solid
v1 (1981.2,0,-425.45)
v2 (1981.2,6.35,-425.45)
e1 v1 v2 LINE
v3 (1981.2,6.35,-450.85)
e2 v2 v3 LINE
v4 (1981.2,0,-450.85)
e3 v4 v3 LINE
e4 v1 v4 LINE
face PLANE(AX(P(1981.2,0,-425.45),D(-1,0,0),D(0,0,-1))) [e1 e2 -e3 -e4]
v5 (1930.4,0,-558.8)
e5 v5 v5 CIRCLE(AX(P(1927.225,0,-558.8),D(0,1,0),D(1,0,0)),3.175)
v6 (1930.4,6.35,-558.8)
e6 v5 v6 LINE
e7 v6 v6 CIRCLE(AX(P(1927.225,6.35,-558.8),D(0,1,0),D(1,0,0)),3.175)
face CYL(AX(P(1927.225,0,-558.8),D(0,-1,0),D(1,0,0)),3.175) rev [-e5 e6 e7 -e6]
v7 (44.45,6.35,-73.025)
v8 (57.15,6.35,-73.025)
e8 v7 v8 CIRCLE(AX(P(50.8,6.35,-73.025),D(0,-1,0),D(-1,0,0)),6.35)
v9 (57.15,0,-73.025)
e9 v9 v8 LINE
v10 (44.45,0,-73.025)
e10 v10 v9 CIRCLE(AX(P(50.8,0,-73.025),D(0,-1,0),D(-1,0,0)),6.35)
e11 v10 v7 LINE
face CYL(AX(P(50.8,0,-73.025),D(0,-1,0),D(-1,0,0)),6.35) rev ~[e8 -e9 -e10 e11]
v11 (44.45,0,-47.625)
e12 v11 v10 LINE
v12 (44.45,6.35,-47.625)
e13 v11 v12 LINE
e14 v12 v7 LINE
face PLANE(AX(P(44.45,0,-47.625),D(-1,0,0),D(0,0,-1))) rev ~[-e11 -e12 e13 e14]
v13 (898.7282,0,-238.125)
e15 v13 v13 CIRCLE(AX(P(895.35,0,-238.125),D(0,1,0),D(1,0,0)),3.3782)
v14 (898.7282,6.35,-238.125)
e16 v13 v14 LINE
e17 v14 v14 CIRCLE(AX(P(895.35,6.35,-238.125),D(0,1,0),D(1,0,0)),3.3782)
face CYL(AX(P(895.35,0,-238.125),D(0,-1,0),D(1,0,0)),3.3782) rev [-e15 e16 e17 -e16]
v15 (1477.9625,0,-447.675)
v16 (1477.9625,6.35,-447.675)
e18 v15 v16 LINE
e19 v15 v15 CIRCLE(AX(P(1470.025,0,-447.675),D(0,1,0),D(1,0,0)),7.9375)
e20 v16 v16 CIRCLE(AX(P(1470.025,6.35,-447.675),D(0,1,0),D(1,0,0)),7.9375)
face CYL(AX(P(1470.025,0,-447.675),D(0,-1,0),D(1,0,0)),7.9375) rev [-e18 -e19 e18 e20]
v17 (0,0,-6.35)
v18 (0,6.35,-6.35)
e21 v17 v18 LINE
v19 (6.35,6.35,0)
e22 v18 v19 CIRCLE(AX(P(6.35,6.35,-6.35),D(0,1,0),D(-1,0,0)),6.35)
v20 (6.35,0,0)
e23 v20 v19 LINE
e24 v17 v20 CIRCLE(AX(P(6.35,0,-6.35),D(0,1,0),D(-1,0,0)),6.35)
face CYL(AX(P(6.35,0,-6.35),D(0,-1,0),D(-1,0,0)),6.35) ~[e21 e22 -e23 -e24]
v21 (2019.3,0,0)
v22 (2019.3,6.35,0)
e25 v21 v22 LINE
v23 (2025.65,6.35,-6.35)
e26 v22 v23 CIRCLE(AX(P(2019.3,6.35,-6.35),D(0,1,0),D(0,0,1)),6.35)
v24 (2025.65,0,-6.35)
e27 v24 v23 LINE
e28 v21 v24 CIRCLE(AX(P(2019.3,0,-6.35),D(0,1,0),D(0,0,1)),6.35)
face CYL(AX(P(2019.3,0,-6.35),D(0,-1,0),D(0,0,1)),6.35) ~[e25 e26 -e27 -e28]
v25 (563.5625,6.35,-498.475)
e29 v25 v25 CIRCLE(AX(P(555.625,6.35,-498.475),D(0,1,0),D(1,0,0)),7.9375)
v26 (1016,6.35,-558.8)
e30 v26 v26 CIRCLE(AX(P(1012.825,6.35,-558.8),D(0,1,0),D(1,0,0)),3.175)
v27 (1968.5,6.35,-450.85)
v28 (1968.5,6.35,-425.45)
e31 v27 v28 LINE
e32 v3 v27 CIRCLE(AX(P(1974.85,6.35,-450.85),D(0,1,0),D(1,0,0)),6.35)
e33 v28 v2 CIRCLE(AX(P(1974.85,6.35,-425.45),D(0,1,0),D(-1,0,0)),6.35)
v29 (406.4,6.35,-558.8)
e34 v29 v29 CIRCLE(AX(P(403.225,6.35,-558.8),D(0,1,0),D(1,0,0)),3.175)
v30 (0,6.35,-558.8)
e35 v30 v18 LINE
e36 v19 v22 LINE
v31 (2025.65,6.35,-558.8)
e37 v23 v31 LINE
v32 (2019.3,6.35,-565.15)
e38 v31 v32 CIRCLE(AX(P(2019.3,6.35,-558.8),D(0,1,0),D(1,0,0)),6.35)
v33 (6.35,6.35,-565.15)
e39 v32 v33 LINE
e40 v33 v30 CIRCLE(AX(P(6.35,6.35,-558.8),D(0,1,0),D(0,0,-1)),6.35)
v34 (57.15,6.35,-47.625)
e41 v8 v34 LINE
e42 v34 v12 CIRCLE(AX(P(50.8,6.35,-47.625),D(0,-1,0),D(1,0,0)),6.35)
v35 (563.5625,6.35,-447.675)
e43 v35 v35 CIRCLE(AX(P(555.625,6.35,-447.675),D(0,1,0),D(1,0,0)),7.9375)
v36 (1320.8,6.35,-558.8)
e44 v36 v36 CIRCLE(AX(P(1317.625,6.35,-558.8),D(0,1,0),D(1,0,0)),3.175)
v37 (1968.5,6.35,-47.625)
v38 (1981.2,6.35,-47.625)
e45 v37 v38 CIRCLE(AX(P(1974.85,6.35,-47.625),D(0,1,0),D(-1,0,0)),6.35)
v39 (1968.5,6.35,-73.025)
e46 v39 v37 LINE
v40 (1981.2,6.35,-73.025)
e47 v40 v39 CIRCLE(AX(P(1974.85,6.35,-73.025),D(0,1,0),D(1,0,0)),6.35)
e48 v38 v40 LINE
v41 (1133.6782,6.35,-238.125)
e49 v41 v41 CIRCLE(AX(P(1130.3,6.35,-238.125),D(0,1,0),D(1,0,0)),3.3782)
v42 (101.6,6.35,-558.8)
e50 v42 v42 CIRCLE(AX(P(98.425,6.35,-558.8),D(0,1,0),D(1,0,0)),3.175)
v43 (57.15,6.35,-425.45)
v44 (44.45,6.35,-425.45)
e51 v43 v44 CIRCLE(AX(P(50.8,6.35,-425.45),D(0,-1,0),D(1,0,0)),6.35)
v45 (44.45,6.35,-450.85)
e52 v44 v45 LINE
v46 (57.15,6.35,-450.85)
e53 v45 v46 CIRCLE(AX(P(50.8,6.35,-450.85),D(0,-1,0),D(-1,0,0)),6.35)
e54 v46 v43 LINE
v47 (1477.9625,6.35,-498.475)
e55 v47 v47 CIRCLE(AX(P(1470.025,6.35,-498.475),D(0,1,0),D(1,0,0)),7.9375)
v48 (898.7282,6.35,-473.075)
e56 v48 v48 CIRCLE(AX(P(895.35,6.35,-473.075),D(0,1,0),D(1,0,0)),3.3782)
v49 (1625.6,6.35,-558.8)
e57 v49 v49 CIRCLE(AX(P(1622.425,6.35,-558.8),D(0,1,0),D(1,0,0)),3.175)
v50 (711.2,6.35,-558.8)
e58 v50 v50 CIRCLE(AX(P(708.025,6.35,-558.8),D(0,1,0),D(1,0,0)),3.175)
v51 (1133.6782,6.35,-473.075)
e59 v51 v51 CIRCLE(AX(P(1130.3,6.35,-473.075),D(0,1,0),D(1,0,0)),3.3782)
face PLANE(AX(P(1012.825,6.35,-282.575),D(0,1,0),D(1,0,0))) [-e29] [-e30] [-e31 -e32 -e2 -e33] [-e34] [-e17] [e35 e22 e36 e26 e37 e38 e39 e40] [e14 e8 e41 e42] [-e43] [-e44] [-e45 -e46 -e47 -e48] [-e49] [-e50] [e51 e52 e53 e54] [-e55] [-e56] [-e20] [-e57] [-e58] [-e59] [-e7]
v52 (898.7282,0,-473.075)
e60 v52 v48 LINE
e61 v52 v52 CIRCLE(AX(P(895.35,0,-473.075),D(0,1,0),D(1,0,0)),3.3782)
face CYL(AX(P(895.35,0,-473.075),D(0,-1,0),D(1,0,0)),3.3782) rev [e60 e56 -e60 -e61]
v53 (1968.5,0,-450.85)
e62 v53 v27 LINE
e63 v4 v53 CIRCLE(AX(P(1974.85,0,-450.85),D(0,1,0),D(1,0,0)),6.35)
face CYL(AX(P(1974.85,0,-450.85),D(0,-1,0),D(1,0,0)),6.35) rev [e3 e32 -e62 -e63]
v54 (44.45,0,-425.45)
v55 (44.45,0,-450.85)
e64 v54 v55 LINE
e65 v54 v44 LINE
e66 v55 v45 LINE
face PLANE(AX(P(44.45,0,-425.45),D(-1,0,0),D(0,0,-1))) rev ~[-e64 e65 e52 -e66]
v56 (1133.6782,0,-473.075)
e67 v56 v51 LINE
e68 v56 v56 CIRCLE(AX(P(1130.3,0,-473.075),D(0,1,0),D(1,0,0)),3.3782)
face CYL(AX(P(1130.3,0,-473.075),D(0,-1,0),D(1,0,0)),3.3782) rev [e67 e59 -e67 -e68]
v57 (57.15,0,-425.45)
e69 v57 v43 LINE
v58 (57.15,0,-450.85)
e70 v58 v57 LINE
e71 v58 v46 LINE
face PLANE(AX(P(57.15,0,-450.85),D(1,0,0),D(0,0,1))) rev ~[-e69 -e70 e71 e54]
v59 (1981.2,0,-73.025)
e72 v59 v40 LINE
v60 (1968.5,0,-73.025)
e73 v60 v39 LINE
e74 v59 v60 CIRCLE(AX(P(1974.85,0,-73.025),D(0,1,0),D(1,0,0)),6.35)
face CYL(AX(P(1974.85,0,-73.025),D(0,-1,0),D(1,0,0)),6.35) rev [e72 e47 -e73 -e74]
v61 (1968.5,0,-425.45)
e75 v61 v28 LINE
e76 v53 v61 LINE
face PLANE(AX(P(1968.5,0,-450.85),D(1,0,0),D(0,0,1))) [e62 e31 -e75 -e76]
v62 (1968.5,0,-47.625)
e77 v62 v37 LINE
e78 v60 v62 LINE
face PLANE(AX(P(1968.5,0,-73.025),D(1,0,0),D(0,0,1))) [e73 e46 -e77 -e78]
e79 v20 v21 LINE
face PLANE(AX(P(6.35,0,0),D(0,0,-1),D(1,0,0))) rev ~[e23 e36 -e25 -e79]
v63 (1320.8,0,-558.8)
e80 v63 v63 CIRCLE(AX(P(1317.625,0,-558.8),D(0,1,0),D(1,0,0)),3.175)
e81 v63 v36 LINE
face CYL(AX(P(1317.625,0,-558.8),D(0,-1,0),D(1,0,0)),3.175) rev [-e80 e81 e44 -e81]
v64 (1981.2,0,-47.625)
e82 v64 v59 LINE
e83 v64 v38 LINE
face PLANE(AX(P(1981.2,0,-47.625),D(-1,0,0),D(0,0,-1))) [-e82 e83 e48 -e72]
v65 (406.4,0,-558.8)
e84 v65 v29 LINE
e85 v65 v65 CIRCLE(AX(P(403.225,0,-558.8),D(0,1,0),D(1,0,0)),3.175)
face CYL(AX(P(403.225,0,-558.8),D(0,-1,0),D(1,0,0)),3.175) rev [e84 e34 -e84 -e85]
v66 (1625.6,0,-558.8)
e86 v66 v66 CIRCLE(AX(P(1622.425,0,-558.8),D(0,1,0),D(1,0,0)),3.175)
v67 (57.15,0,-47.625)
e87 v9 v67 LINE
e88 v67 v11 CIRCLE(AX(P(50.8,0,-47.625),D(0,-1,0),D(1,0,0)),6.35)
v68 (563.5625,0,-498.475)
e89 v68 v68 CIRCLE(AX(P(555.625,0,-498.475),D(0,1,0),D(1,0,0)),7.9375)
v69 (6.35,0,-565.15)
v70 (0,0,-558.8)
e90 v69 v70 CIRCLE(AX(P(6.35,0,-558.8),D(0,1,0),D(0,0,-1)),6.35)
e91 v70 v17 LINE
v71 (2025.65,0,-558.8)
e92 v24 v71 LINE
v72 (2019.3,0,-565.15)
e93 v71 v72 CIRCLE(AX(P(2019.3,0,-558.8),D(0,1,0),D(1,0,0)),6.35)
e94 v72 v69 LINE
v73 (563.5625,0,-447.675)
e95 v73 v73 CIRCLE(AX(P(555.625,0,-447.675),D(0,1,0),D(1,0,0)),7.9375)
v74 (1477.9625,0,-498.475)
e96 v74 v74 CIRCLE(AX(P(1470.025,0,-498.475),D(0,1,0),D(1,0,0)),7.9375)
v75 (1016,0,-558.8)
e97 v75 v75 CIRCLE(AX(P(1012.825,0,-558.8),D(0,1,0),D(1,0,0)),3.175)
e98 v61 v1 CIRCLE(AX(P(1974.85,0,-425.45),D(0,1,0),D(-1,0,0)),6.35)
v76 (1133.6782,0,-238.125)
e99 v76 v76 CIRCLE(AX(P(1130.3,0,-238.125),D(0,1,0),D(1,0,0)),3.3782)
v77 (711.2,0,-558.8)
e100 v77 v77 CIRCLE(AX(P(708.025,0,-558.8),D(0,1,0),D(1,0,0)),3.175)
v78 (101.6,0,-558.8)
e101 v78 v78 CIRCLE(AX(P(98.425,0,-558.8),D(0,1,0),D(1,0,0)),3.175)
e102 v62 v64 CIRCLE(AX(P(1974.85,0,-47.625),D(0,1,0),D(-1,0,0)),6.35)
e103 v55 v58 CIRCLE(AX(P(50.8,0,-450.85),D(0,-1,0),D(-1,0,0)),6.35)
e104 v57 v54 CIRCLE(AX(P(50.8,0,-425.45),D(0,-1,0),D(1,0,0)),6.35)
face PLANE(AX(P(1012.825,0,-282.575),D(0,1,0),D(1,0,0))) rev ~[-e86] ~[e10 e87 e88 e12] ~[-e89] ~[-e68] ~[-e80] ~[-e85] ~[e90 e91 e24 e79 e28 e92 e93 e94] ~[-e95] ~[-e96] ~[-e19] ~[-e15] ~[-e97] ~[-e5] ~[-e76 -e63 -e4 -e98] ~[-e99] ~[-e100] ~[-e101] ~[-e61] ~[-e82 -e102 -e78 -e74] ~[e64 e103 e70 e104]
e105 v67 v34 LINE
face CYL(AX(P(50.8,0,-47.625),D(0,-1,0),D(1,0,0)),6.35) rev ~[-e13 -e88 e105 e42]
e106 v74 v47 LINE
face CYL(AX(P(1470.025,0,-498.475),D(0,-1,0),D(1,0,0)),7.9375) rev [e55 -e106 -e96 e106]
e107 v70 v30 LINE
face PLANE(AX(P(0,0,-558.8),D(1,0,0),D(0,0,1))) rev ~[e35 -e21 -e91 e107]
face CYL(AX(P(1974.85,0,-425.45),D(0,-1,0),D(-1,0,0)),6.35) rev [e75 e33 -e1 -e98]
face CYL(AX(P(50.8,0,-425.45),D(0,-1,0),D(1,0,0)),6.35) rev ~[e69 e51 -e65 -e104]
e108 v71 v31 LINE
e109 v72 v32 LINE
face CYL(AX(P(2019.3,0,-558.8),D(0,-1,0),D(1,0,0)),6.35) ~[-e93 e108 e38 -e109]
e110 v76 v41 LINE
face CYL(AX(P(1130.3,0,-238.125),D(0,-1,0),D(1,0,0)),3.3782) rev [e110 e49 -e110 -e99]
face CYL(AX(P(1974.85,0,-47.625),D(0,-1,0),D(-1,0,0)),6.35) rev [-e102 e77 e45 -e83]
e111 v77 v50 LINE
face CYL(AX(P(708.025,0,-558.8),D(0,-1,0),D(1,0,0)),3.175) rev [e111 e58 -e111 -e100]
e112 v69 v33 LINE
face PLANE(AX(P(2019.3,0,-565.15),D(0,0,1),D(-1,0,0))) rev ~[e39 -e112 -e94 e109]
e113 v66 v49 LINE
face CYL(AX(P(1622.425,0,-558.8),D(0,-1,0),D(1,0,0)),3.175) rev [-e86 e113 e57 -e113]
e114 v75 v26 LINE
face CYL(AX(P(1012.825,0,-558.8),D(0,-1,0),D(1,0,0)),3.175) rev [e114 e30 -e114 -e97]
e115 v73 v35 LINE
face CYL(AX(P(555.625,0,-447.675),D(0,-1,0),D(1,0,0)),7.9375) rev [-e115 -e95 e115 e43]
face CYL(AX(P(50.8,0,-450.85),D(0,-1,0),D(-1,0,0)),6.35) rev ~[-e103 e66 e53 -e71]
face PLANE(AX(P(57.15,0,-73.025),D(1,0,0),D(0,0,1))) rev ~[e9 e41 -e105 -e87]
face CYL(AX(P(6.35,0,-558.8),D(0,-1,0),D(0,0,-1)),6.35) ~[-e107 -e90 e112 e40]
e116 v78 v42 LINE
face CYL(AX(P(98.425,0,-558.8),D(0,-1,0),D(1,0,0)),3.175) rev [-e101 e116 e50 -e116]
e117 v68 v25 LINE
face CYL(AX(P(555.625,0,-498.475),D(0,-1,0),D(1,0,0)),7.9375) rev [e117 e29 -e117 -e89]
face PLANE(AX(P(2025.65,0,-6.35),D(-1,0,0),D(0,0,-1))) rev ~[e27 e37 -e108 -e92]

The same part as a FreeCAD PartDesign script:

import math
import FreeCAD as App
import Part
import Sketcher
Q = App.Units.Quantity

doc = App.newDocument("Part")
body = doc.addObject("PartDesign::Body", "Body")

sketch1 = doc.addObject("Sketcher::SketchObject", "Sketch")
body.addObject(sketch1)
sketch1.AttachmentSupport = (doc.XZ_Plane, [""])
sketch1.MapMode = "FlatFace"
sketch1.addGeometry([
    Part.LineSegment(App.Vector(6.35, 0, 0), App.Vector(2019.3, 0, 0)),
    Part.ArcOfCircle(Part.Circle(App.Vector(2019.3, -6.35, 0), App.Vector(0, 0, 1), 6.35), math.radians(0), math.radians(90)),
    Part.LineSegment(App.Vector(2025.65, -6.35, 0), App.Vector(2025.65, -558.8, 0)),
    Part.ArcOfCircle(Part.Circle(App.Vector(2019.3, -558.8, 0), App.Vector(0, 0, 1), 6.35), math.radians(-90), math.radians(0)),
    Part.LineSegment(App.Vector(2019.3, -565.15, 0), App.Vector(6.35, -565.15, 0)),
    Part.ArcOfCircle(Part.Circle(App.Vector(6.35, -558.8, 0), App.Vector(0, 0, 1), 6.35), math.radians(180), math.radians(270)),
    Part.LineSegment(App.Vector(0, -558.8, 0), App.Vector(0, -6.35, 0)),
    Part.ArcOfCircle(Part.Circle(App.Vector(6.35, -6.35, 0), App.Vector(0, 0, 1), 6.35), math.radians(90), math.radians(180)),
    Part.ArcOfCircle(Part.Circle(App.Vector(50.8, -73.025, 0), App.Vector(0, 0, 1), 6.35), math.radians(180), math.radians(360)),
    Part.LineSegment(App.Vector(57.15, -73.025, 0), App.Vector(57.15, -47.625, 0)),
    Part.ArcOfCircle(Part.Circle(App.Vector(50.8, -47.625, 0), App.Vector(0, 0, 1), 6.35), math.radians(0), math.radians(180)),
    Part.LineSegment(App.Vector(44.45, -47.625, 0), App.Vector(44.45, -73.025, 0)),
    Part.Circle(App.Vector(895.35, -238.125, 0), App.Vector(0, 0, 1), 3.3782),
    Part.LineSegment(App.Vector(1968.5, -47.625, 0), App.Vector(1968.5, -73.025, 0)),
    Part.ArcOfCircle(Part.Circle(App.Vector(1974.85, -73.025, 0), App.Vector(0, 0, 1), 6.35), math.radians(180), math.radians(360)),
    Part.LineSegment(App.Vector(1981.2, -73.025, 0), App.Vector(1981.2, -47.625, 0)),
    Part.ArcOfCircle(Part.Circle(App.Vector(1974.85, -47.625, 0), App.Vector(0, 0, 1), 6.35), math.radians(0), math.radians(180)),
    Part.Circle(App.Vector(1130.3, -238.125, 0), App.Vector(0, 0, 1), 3.3782),
    Part.ArcOfCircle(Part.Circle(App.Vector(50.8, -425.45, 0), App.Vector(0, 0, 1), 6.35), math.radians(0), math.radians(180)),
    Part.LineSegment(App.Vector(44.45, -425.45, 0), App.Vector(44.45, -450.85, 0)),
    Part.ArcOfCircle(Part.Circle(App.Vector(50.8, -450.85, 0), App.Vector(0, 0, 1), 6.35), math.radians(180), math.radians(360)),
    Part.LineSegment(App.Vector(57.15, -450.85, 0), App.Vector(57.15, -425.45, 0)),
    Part.Circle(App.Vector(98.425, -558.8, 0), App.Vector(0, 0, 1), 3.175),
    Part.Circle(App.Vector(403.225, -558.8, 0), App.Vector(0, 0, 1), 3.175),
    Part.Circle(App.Vector(555.625, -447.675, 0), App.Vector(0, 0, 1), 7.9375),
    Part.Circle(App.Vector(895.35, -473.075, 0), App.Vector(0, 0, 1), 3.3782),
    Part.Circle(App.Vector(555.625, -498.475, 0), App.Vector(0, 0, 1), 7.9375),
    Part.Circle(App.Vector(708.025, -558.8, 0), App.Vector(0, 0, 1), 3.175),
    Part.Circle(App.Vector(1012.825, -558.8, 0), App.Vector(0, 0, 1), 3.175),
    Part.Circle(App.Vector(1130.3, -473.075, 0), App.Vector(0, 0, 1), 3.3782),
    Part.Circle(App.Vector(1470.025, -447.675, 0), App.Vector(0, 0, 1), 7.9375),
    Part.Circle(App.Vector(1470.025, -498.475, 0), App.Vector(0, 0, 1), 7.9375),
    Part.Circle(App.Vector(1317.625, -558.8, 0), App.Vector(0, 0, 1), 3.175),
    Part.LineSegment(App.Vector(1981.2, -450.85, 0), App.Vector(1981.2, -425.45, 0)),
    Part.ArcOfCircle(Part.Circle(App.Vector(1974.85, -425.45, 0), App.Vector(0, 0, 1), 6.35), math.radians(0), math.radians(180)),
    Part.LineSegment(App.Vector(1968.5, -425.45, 0), App.Vector(1968.5, -450.85, 0)),
    Part.ArcOfCircle(Part.Circle(App.Vector(1974.85, -450.85, 0), App.Vector(0, 0, 1), 6.35), math.radians(180), math.radians(360)),
    Part.Circle(App.Vector(1622.425, -558.8, 0), App.Vector(0, 0, 1), 3.175),
    Part.Circle(App.Vector(1927.225, -558.8, 0), App.Vector(0, 0, 1), 3.175),
], False)
sketch1.addConstraint([
    Sketcher.Constraint("Tangent", 0, 2, 1, 2),
    Sketcher.Constraint("Tangent", 1, 1, 2, 1),
    Sketcher.Constraint("Tangent", 2, 2, 3, 2),
    Sketcher.Constraint("Tangent", 3, 1, 4, 1),
    Sketcher.Constraint("Tangent", 4, 2, 5, 2),
    Sketcher.Constraint("Tangent", 5, 1, 6, 1),
    Sketcher.Constraint("Tangent", 6, 2, 7, 2),
    Sketcher.Constraint("Tangent", 7, 1, 0, 1),
    Sketcher.Constraint("Tangent", 8, 2, 9, 1),
    Sketcher.Constraint("Tangent", 9, 2, 10, 1),
    Sketcher.Constraint("Tangent", 10, 2, 11, 1),
    Sketcher.Constraint("Tangent", 11, 2, 8, 1),
    Sketcher.Constraint("Tangent", 13, 2, 14, 1),
    Sketcher.Constraint("Tangent", 14, 2, 15, 1),
    Sketcher.Constraint("Tangent", 15, 2, 16, 1),
    Sketcher.Constraint("Tangent", 16, 2, 13, 1),
    Sketcher.Constraint("Tangent", 18, 2, 19, 1),
    Sketcher.Constraint("Tangent", 19, 2, 20, 1),
    Sketcher.Constraint("Tangent", 20, 2, 21, 1),
    Sketcher.Constraint("Tangent", 21, 2, 18, 1),
    Sketcher.Constraint("Tangent", 33, 2, 34, 1),
    Sketcher.Constraint("Tangent", 34, 2, 35, 1),
    Sketcher.Constraint("Tangent", 35, 2, 36, 1),
    Sketcher.Constraint("Tangent", 36, 2, 33, 1),
    Sketcher.Constraint("Horizontal", 0),
    Sketcher.Constraint("Vertical", 2),
    Sketcher.Constraint("Horizontal", 4),
    Sketcher.Constraint("Vertical", 6),
    Sketcher.Constraint("Vertical", 9),
    Sketcher.Constraint("Vertical", 11),
    Sketcher.Constraint("Vertical", 13),
    Sketcher.Constraint("Vertical", 15),
    Sketcher.Constraint("Vertical", 19),
    Sketcher.Constraint("Vertical", 21),
    Sketcher.Constraint("Vertical", 33),
    Sketcher.Constraint("Vertical", 35),
    Sketcher.Constraint("Equal", 1, 3),
    Sketcher.Constraint("Equal", 3, 5),
    Sketcher.Constraint("Equal", 5, 7),
    Sketcher.Constraint("Equal", 7, 8),
    Sketcher.Constraint("Equal", 10, 14),
    Sketcher.Constraint("Equal", 12, 17),
    Sketcher.Constraint("Equal", 16, 18),
    Sketcher.Constraint("Equal", 22, 23),
    Sketcher.Constraint("Equal", 17, 25),
    Sketcher.Constraint("Equal", 24, 26),
    Sketcher.Constraint("Equal", 23, 27),
    Sketcher.Constraint("Equal", 27, 28),
    Sketcher.Constraint("Equal", 25, 29),
    Sketcher.Constraint("Equal", 26, 30),
    Sketcher.Constraint("Equal", 30, 31),
    Sketcher.Constraint("Equal", 28, 32),
    Sketcher.Constraint("Equal", 20, 34),
    Sketcher.Constraint("Equal", 32, 37),
    Sketcher.Constraint("Equal", 37, 38),
    Sketcher.Constraint("PointOnObject", 0, 2, -1),
    Sketcher.Constraint("PointOnObject", 5, 1, -2),
    Sketcher.Constraint("Horizontal", 8, 3, 14, 3),
    Sketcher.Constraint("Horizontal", 10, 3, 16, 3),
    Sketcher.Constraint("Horizontal", 12, 3, 17, 3),
    Sketcher.Constraint("Horizontal", 5, 3, 22, 3),
    Sketcher.Constraint("Horizontal", 22, 3, 23, 3),
    Sketcher.Constraint("Horizontal", 23, 3, 27, 3),
    Sketcher.Constraint("Horizontal", 27, 3, 28, 3),
    Sketcher.Constraint("Horizontal", 25, 3, 29, 3),
    Sketcher.Constraint("Horizontal", 24, 3, 30, 3),
    Sketcher.Constraint("Horizontal", 26, 3, 31, 3),
    Sketcher.Constraint("Horizontal", 28, 3, 32, 3),
    Sketcher.Constraint("Horizontal", 18, 3, 34, 3),
    Sketcher.Constraint("Horizontal", 20, 3, 36, 3),
    Sketcher.Constraint("Horizontal", 32, 3, 37, 3),
    Sketcher.Constraint("Horizontal", 37, 3, 38, 3),
    Sketcher.Constraint("Vertical", 10, 3, 18, 3),
    Sketcher.Constraint("Vertical", 12, 3, 25, 3),
    Sketcher.Constraint("Vertical", 24, 3, 26, 3),
    Sketcher.Constraint("Vertical", 17, 3, 29, 3),
    Sketcher.Constraint("Vertical", 30, 3, 31, 3),
    Sketcher.Constraint("Vertical", 16, 3, 34, 3),
    Sketcher.Constraint("Equal", 15, 19),
    Sketcher.Constraint("Diameter", 22, Q("0.25 in")),
    Sketcher.Constraint("DistanceY", 9, 1, 9, 2, Q("1 in")),
    Sketcher.Constraint("Radius", 1, Q("0.25 in")),
    Sketcher.Constraint("Diameter", 12, Q("0.266 in")),
    Sketcher.Constraint("Diameter", 24, Q("0.625 in")),
    Sketcher.Constraint("DistanceY", 3, 3, -1, 1, Q("22 in")),
    Sketcher.Constraint("DistanceX", -1, 1, 8, 3, Q("2 in")),
    Sketcher.Constraint("DistanceX", -1, 1, 14, 2, Q("78 in")),
    Sketcher.Constraint("DistanceX", 7, 3, 12, 3, Q("35 in")),
    Sketcher.Constraint("DistanceX", 17, 3, 1, 3, Q("35 in")),
    Sketcher.Constraint("DistanceX", 22, 3, 23, 3, Q("12 in")),
    Sketcher.Constraint("DistanceX", 23, 3, 24, 3, Q("6 in")),
    Sketcher.Constraint("DistanceY", 25, 3, 24, 3, Q("1 in")),
    Sketcher.Constraint("DistanceY", 26, 3, 24, 3, Q("2 in")),
    Sketcher.Constraint("DistanceX", 26, 3, 27, 3, Q("6 in")),
    Sketcher.Constraint("DistanceX", 27, 3, 28, 3, Q("12 in")),
    Sketcher.Constraint("DistanceX", 28, 3, 30, 3, Q("18 in")),
    Sketcher.Constraint("DistanceX", 32, 3, 31, 3, Q("6 in")),
    Sketcher.Constraint("DistanceX", 31, 3, 37, 3, Q("6 in")),
    Sketcher.Constraint("DistanceX", 37, 3, 38, 3, Q("12 in")),
    Sketcher.Constraint("DistanceX", 16, 3, 1, 1, Q("2 in")),
    Sketcher.Constraint("DistanceY", 12, 3, 8, 3, Q("6.5 in")),
    Sketcher.Constraint("DistanceY", 18, 3, 7, 3, Q("16.5 in")),
    Sketcher.Constraint("DistanceY", 24, 3, 12, 3, Q("8.25 in")),
    Sketcher.Constraint("DistanceY", 8, 3, -1, 1, Q("2.875 in")),
    Sketcher.Constraint("DistanceX", -1, 1, 22, 3, Q("3.875 in")),
])
pad1 = doc.addObject("PartDesign::Pad", "Pad")
body.addObject(pad1)
pad1.Profile = sketch1
pad1.Length = Q("0.25 in")
pad1.Reversed = True

doc.recompute()
